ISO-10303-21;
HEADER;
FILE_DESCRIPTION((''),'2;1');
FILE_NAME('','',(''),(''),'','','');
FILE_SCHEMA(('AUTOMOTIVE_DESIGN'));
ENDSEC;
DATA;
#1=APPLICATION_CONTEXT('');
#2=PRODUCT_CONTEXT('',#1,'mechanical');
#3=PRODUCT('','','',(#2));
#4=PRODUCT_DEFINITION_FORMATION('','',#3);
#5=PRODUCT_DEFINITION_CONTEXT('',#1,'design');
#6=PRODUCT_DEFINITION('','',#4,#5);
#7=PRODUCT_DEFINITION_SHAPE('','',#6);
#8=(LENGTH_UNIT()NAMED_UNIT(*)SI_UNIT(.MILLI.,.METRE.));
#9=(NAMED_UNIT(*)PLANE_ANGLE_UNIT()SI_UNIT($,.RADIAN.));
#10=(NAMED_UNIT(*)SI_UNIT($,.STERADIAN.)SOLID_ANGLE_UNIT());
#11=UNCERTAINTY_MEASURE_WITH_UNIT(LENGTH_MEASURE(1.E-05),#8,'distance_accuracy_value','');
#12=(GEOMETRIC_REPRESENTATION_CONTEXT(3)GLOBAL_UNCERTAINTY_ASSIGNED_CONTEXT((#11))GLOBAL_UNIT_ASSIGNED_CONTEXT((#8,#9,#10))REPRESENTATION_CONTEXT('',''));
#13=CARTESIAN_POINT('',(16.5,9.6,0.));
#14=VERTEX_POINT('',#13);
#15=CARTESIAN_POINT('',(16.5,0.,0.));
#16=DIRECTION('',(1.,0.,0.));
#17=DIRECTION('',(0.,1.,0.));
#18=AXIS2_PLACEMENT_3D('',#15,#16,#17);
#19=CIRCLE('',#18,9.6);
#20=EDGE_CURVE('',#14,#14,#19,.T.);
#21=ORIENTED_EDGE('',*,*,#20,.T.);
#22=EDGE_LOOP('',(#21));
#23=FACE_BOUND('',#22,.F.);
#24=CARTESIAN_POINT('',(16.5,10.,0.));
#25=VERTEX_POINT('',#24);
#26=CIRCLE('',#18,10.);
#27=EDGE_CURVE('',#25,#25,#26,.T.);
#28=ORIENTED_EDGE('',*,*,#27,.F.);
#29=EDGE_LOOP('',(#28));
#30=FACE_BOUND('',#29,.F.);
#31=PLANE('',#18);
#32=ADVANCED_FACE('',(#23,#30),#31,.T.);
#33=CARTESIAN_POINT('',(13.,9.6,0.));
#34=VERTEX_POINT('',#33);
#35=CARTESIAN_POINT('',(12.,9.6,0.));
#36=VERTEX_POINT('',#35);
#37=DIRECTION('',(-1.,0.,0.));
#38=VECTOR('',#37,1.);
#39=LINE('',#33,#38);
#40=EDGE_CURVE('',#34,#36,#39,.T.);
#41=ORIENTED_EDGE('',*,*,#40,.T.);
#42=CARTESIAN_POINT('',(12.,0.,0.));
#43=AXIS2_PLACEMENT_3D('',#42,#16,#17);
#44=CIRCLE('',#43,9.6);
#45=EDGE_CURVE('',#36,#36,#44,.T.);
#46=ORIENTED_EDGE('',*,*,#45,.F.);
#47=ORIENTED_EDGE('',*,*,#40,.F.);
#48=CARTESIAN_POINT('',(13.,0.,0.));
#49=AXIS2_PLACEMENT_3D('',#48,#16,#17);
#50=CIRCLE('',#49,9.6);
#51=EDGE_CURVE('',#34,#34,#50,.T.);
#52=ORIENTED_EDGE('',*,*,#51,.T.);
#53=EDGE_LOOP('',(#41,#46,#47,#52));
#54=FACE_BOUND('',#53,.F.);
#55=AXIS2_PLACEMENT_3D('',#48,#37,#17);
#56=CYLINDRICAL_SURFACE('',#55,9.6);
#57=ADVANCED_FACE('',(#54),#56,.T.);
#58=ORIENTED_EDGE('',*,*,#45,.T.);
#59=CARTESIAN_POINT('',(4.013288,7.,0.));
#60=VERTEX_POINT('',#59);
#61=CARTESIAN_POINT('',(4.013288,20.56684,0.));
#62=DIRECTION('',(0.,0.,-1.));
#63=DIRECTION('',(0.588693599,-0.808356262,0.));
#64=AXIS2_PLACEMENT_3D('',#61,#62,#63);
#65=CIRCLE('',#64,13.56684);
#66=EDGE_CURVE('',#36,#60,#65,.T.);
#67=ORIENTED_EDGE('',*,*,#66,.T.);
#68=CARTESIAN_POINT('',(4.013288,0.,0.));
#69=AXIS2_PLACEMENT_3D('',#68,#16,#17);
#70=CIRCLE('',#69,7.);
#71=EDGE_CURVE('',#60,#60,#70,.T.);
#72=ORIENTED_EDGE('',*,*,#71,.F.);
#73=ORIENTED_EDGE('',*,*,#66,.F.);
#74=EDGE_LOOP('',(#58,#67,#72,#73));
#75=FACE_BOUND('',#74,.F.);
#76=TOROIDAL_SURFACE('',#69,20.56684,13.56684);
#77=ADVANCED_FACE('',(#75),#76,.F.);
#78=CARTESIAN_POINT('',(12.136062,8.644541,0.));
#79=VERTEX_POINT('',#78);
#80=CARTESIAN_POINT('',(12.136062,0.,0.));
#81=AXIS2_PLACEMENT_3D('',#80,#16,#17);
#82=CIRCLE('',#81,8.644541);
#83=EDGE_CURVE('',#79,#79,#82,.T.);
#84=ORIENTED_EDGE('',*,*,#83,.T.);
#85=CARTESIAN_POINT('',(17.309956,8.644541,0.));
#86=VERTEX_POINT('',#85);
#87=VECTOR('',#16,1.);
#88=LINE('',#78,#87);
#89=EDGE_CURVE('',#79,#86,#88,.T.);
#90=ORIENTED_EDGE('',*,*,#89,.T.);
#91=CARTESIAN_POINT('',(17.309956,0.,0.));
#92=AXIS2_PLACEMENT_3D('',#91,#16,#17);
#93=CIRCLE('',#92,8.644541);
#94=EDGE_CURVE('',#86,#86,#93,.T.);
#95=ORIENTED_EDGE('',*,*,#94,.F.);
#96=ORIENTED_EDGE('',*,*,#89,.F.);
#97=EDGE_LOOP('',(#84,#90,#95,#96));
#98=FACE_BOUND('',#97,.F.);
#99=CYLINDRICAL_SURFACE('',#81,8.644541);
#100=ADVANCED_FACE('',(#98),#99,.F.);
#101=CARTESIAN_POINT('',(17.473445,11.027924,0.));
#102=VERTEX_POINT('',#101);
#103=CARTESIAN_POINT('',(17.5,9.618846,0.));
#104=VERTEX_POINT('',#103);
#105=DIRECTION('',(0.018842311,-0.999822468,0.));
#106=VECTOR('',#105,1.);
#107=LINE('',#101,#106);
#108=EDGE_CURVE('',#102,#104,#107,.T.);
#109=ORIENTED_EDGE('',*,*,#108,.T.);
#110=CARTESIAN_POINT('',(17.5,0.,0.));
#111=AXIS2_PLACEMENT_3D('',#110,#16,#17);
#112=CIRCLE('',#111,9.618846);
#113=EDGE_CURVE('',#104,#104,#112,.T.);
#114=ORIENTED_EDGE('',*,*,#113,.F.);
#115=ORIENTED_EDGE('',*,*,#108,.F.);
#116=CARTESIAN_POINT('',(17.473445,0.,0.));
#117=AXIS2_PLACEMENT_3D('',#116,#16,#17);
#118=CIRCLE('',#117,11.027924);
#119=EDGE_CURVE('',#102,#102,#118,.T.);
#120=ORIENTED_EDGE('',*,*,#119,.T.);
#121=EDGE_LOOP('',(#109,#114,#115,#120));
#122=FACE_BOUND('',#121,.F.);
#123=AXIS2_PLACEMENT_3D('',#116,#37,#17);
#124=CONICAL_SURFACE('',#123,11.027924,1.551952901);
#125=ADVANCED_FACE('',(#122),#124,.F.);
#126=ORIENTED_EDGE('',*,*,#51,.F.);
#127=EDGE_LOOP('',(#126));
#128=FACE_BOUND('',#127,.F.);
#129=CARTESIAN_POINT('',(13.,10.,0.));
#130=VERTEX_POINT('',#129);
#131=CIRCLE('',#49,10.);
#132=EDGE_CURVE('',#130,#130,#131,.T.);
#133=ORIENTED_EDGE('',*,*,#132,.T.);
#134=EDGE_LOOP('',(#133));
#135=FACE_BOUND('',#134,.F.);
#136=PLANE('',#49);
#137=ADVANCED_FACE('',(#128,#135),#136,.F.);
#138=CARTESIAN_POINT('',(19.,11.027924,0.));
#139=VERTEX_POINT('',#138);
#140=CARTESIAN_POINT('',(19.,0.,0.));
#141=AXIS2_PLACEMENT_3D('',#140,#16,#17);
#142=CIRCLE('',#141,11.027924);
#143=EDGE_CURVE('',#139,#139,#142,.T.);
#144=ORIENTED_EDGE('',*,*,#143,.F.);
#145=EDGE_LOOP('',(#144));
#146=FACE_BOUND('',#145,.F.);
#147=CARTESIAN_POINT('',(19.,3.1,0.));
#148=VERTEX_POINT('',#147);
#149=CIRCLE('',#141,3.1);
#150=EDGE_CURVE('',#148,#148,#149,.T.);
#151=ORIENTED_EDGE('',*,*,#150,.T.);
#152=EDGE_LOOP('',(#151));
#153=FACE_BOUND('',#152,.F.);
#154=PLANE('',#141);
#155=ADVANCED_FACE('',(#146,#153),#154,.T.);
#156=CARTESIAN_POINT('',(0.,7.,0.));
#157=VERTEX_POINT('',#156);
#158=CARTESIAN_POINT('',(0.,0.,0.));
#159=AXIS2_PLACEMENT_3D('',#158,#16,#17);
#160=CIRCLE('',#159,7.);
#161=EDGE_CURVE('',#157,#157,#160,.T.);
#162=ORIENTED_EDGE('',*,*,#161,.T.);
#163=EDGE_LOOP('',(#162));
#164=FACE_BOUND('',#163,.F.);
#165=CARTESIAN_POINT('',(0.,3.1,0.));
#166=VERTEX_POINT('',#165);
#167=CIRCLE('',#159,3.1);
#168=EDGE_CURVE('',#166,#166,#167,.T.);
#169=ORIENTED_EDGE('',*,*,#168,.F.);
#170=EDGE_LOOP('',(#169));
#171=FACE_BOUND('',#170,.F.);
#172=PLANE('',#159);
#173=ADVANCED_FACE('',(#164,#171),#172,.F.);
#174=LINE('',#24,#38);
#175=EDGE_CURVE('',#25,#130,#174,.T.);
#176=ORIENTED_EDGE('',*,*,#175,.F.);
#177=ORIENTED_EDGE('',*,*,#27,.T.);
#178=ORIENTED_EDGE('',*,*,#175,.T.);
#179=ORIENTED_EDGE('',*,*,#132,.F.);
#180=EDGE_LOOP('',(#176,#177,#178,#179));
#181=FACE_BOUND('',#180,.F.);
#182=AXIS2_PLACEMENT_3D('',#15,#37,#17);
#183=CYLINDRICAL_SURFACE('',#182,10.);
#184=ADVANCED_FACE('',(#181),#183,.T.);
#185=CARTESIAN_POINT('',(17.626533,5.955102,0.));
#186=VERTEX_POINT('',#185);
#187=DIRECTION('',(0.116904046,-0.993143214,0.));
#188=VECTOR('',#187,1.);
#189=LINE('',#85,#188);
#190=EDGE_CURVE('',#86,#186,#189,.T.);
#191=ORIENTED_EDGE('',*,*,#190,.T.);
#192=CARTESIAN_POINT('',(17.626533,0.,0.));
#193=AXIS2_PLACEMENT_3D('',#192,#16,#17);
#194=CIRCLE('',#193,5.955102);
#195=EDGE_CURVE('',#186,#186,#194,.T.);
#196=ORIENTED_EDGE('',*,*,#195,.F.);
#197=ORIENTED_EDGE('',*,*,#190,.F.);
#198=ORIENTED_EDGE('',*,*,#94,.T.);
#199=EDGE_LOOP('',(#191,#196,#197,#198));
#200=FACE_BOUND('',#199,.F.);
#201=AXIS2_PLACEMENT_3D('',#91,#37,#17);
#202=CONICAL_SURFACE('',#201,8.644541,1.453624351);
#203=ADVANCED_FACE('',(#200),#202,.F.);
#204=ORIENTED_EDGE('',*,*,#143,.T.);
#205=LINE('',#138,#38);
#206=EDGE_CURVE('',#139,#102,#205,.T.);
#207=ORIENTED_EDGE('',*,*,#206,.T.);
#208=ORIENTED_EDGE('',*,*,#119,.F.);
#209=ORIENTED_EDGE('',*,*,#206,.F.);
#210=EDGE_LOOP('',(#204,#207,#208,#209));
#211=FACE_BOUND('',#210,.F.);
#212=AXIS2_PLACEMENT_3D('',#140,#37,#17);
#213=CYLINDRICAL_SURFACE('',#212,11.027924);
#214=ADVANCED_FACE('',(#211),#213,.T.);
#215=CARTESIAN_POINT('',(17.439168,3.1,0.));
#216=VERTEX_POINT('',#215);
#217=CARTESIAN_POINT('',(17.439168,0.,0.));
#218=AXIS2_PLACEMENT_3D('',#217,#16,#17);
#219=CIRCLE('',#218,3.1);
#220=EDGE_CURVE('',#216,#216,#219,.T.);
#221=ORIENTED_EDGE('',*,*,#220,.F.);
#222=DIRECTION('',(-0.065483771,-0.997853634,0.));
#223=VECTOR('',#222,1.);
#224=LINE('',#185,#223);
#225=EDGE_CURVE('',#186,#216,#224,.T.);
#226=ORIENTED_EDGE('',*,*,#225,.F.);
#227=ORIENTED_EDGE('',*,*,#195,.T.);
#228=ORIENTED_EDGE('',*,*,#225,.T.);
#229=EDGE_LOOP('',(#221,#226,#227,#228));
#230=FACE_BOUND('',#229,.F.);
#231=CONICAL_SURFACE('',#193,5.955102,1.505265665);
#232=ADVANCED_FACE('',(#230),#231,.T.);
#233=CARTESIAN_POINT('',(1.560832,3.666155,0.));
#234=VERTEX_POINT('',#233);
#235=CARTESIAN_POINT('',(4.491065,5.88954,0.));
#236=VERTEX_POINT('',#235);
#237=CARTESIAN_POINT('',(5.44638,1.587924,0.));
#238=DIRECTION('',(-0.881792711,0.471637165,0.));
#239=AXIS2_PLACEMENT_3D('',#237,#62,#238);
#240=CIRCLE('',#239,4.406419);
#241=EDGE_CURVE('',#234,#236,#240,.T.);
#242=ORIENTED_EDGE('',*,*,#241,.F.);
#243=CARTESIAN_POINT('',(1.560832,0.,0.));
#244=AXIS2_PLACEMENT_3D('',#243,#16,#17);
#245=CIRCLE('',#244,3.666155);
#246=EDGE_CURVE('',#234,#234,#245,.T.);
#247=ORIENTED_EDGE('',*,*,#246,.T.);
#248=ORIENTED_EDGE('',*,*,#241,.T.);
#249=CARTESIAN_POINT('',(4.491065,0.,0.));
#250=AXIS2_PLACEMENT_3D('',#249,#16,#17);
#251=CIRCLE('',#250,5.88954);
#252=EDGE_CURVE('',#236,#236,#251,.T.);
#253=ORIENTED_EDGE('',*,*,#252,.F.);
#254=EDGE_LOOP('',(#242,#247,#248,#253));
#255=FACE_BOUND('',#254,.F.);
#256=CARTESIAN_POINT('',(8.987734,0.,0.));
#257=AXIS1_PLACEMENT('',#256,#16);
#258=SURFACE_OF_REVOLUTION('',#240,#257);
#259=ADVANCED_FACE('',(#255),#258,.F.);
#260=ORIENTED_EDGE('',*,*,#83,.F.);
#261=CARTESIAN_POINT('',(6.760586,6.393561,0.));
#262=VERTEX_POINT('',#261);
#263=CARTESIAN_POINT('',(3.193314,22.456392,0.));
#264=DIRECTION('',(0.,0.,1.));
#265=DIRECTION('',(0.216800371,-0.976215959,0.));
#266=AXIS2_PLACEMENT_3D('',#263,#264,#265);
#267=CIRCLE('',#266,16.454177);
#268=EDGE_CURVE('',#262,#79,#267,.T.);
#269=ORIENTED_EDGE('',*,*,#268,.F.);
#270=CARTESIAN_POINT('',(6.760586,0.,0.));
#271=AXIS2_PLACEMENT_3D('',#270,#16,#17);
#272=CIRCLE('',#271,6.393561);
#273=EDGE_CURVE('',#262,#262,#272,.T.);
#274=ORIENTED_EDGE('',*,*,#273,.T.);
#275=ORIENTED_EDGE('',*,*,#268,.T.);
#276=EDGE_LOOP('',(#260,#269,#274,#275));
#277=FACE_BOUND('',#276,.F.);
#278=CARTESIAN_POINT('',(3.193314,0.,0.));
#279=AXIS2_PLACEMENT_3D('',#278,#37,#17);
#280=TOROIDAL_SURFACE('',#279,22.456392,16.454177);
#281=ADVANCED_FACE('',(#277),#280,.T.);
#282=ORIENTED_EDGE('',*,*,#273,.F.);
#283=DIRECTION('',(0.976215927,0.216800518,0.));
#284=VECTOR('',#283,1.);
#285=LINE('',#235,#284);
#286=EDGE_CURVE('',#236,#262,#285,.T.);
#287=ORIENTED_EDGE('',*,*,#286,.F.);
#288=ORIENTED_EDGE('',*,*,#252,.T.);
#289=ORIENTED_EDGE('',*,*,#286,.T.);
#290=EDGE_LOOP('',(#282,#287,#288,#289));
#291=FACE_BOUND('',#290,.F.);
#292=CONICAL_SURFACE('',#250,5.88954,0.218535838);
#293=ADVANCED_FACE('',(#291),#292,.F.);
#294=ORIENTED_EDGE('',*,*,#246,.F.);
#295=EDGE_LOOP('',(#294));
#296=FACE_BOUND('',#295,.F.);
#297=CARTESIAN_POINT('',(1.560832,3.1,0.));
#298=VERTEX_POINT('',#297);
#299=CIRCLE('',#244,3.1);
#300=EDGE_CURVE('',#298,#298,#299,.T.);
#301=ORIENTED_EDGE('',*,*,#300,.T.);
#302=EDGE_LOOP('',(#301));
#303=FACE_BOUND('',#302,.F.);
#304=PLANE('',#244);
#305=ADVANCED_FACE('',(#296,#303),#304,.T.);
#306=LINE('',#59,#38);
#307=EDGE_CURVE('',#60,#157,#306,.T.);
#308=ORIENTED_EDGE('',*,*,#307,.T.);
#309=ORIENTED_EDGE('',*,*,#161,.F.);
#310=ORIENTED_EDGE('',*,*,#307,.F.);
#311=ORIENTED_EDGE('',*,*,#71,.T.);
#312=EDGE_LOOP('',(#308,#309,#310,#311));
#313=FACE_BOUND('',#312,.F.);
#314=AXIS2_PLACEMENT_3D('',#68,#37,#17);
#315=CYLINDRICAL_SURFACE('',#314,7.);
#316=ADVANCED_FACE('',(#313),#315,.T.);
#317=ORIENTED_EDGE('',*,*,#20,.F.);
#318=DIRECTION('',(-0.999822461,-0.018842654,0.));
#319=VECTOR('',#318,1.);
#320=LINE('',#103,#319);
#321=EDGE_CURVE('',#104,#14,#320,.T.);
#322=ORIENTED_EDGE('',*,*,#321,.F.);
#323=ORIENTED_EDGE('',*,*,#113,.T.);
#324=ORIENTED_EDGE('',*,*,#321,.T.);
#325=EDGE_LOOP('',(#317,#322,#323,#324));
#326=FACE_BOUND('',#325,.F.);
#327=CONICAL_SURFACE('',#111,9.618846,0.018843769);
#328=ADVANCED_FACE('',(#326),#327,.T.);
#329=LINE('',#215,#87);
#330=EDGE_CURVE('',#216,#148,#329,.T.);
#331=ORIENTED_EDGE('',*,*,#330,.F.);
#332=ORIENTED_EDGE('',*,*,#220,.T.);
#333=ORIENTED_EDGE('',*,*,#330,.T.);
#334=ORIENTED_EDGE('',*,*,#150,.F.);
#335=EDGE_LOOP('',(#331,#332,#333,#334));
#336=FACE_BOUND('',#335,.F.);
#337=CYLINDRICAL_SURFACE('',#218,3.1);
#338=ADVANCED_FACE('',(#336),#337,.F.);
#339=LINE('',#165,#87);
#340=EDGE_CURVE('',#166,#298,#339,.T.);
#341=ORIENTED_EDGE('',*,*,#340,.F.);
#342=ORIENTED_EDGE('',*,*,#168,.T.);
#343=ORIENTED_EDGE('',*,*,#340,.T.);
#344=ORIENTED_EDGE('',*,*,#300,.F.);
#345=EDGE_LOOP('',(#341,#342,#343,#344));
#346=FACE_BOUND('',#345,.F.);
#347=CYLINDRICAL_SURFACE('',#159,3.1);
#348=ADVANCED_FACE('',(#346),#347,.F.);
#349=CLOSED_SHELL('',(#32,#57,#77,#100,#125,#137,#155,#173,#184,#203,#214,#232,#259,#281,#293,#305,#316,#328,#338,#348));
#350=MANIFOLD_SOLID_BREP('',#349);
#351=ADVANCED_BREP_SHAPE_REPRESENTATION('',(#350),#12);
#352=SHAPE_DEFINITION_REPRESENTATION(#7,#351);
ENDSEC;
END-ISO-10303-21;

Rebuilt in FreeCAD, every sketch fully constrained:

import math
import FreeCAD as App
import Part
import Sketcher

doc = App.newDocument("Part")
body = doc.addObject("PartDesign::Body", "Body")

# Sketch on XY plane
sketch1 = doc.addObject("Sketcher::SketchObject", "Sketch")
body.addObject(sketch1)
sketch1.AttachmentSupport = (doc.XY_Plane, [""])
sketch1.MapMode = "FlatFace"
sketch1.addGeometry([
    Part.LineSegment(App.Vector(4.01, 7, 0), App.Vector(0, 7, 0)),  # 0
    Part.LineSegment(App.Vector(0, 7, 0), App.Vector(0, 3.1, 0)),  # 1
    Part.LineSegment(App.Vector(0, 3.1, 0), App.Vector(1.56, 3.1, 0)),  # 2
    Part.LineSegment(App.Vector(1.56, 3.1, 0), App.Vector(1.56, 3.67, 0)),  # 3
    Part.ArcOfCircle(Part.Circle(App.Vector(5.45, 1.59, 0), App.Vector(0, 0, 1), 4.41), math.radians(103), math.radians(152)),  # 4
    Part.LineSegment(App.Vector(4.49, 5.89, 0), App.Vector(6.76, 6.39, 0)),  # 5
    Part.ArcOfCircle(Part.Circle(App.Vector(3.19, 22.46, 0), App.Vector(0, 0, 1), 16.45), math.radians(-77), math.radians(-57)),  # 6
    Part.LineSegment(App.Vector(12.14, 8.64, 0), App.Vector(17.31, 8.64, 0)),  # 7
    Part.LineSegment(App.Vector(17.31, 8.64, 0), App.Vector(17.63, 5.96, 0)),  # 8
    Part.LineSegment(App.Vector(17.63, 5.96, 0), App.Vector(17.44, 3.1, 0)),  # 9
    Part.LineSegment(App.Vector(17.44, 3.1, 0), App.Vector(19, 3.1, 0)),  # 10
    Part.LineSegment(App.Vector(19, 3.1, 0), App.Vector(19, 11.03, 0)),  # 11
    Part.LineSegment(App.Vector(19, 11.03, 0), App.Vector(17.47, 11.03, 0)),  # 12
    Part.LineSegment(App.Vector(17.47, 11.03, 0), App.Vector(17.5, 9.62, 0)),  # 13
    Part.LineSegment(App.Vector(17.5, 9.62, 0), App.Vector(16.5, 9.6, 0)),  # 14
    Part.LineSegment(App.Vector(16.5, 9.6, 0), App.Vector(16.5, 10, 0)),  # 15
    Part.LineSegment(App.Vector(16.5, 10, 0), App.Vector(13, 10, 0)),  # 16
    Part.LineSegment(App.Vector(13, 10, 0), App.Vector(13, 9.6, 0)),  # 17
    Part.LineSegment(App.Vector(13, 9.6, 0), App.Vector(12, 9.6, 0)),  # 18
    Part.ArcOfCircle(Part.Circle(App.Vector(4.01, 20.57, 0), App.Vector(0, 0, 1), 13.57), math.radians(-90), math.radians(-54)),  # 19
], False)
sketch1.addConstraint([
    Sketcher.Constraint("Coincident", 0, 2, 1, 1),
    Sketcher.Constraint("Coincident", 1, 2, 2, 1),
    Sketcher.Constraint("Coincident", 2, 2, 3, 1),
    Sketcher.Constraint("Coincident", 3, 2, 4, 2),
    Sketcher.Constraint("Tangent", 4, 1, 5, 1),
    Sketcher.Constraint("Tangent", 5, 2, 6, 1),
    Sketcher.Constraint("Coincident", 6, 2, 7, 1),
    Sketcher.Constraint("Coincident", 7, 2, 8, 1),
    Sketcher.Constraint("Coincident", 8, 2, 9, 1),
    Sketcher.Constraint("Coincident", 9, 2, 10, 1),
    Sketcher.Constraint("Coincident", 10, 2, 11, 1),
    Sketcher.Constraint("Coincident", 11, 2, 12, 1),
    Sketcher.Constraint("Coincident", 12, 2, 13, 1),
    Sketcher.Constraint("Coincident", 13, 2, 14, 1),
    Sketcher.Constraint("Coincident", 14, 2, 15, 1),
    Sketcher.Constraint("Coincident", 15, 2, 16, 1),
    Sketcher.Constraint("Coincident", 16, 2, 17, 1),
    Sketcher.Constraint("Coincident", 17, 2, 18, 1),
    Sketcher.Constraint("Coincident", 18, 2, 19, 2),
    Sketcher.Constraint("Tangent", 19, 1, 0, 1),
    Sketcher.Constraint("Horizontal", 0),
    Sketcher.Constraint("Vertical", 1),
    Sketcher.Constraint("Horizontal", 2),
    Sketcher.Constraint("Vertical", 3),
    Sketcher.Constraint("Horizontal", 7),
    Sketcher.Constraint("Horizontal", 10),
    Sketcher.Constraint("Vertical", 11),
    Sketcher.Constraint("Horizontal", 12),
    Sketcher.Constraint("Vertical", 15),
    Sketcher.Constraint("Horizontal", 16),
    Sketcher.Constraint("Vertical", 17),
    Sketcher.Constraint("Horizontal", 18),
    Sketcher.Constraint("PointOnObject", 0, 2, -2),
    Sketcher.Constraint("Perpendicular", 13, 14),
    Sketcher.Constraint("Horizontal", 2, 2, 9, 2),
    Sketcher.Constraint("Horizontal", 14, 2, 17, 2),
    Sketcher.Constraint("Equal", 2, 10),
    Sketcher.Constraint("DistanceX", 18, 2, 18, 1, 1.0),
    Sketcher.Constraint("DistanceX", 16, 2, 16, 1, 3.5),
    Sketcher.Constraint("DistanceY", 1, 2, 1, 1, 3.9),
    Sketcher.Constraint("DistanceY", 15, 1, 15, 2, 0.4),
    Sketcher.Constraint("DistanceY", -1, 1, 0, 2, 7.0),
    Sketcher.Constraint("DistanceX", -1, 1, 10, 2, 19.0),
    Sketcher.Constraint("DistanceY", -1, 1, 15, 2, 10.0),
    Sketcher.Constraint("DistanceX", -1, 1, 16, 2, 13.0),
    Sketcher.Constraint("DistanceX", 14, 2, 13, 2, 1.0),
    Sketcher.Constraint("Radius", 4, 4.406419),
    Sketcher.Constraint("Radius", 19, 13.56684),
    Sketcher.Constraint("Radius", 6, 16.454177),
    Sketcher.Constraint("DistanceY", 4, 1, 6, 2, 2.755001),
    Sketcher.Constraint("DistanceY", 9, 2, 8, 2, 2.855102),
    Sketcher.Constraint("Distance", 13, 1.409328),
    Sketcher.Constraint("DistanceX", 2, 1, 2, 2, 1.560832),
    Sketcher.Constraint("DistanceX", 7, 1, 7, 2, 5.173894),
    Sketcher.Constraint("DistanceX", 12, 2, 12, 1, 1.526555),
    Sketcher.Constraint("DistanceY", 3, 1, 3, 2, 0.566155),
    Sketcher.Constraint("DistanceX", -1, 1, 4, 3, 5.44638),
    Sketcher.Constraint("DistanceY", -1, 1, 6, 3, 22.456392),
    Sketcher.Constraint("DistanceY", -1, 1, 4, 1, 5.88954),
    Sketcher.Constraint("DistanceX", 6, 2, 8, 2, 5.490471),
])
revolution = doc.addObject("PartDesign::Revolution", "Revolution")
body.addObject(revolution)
revolution.Profile = sketch1
revolution.ReferenceAxis = (sketch1, ["H_Axis"])
revolution.Angle = 360

doc.recompute()
